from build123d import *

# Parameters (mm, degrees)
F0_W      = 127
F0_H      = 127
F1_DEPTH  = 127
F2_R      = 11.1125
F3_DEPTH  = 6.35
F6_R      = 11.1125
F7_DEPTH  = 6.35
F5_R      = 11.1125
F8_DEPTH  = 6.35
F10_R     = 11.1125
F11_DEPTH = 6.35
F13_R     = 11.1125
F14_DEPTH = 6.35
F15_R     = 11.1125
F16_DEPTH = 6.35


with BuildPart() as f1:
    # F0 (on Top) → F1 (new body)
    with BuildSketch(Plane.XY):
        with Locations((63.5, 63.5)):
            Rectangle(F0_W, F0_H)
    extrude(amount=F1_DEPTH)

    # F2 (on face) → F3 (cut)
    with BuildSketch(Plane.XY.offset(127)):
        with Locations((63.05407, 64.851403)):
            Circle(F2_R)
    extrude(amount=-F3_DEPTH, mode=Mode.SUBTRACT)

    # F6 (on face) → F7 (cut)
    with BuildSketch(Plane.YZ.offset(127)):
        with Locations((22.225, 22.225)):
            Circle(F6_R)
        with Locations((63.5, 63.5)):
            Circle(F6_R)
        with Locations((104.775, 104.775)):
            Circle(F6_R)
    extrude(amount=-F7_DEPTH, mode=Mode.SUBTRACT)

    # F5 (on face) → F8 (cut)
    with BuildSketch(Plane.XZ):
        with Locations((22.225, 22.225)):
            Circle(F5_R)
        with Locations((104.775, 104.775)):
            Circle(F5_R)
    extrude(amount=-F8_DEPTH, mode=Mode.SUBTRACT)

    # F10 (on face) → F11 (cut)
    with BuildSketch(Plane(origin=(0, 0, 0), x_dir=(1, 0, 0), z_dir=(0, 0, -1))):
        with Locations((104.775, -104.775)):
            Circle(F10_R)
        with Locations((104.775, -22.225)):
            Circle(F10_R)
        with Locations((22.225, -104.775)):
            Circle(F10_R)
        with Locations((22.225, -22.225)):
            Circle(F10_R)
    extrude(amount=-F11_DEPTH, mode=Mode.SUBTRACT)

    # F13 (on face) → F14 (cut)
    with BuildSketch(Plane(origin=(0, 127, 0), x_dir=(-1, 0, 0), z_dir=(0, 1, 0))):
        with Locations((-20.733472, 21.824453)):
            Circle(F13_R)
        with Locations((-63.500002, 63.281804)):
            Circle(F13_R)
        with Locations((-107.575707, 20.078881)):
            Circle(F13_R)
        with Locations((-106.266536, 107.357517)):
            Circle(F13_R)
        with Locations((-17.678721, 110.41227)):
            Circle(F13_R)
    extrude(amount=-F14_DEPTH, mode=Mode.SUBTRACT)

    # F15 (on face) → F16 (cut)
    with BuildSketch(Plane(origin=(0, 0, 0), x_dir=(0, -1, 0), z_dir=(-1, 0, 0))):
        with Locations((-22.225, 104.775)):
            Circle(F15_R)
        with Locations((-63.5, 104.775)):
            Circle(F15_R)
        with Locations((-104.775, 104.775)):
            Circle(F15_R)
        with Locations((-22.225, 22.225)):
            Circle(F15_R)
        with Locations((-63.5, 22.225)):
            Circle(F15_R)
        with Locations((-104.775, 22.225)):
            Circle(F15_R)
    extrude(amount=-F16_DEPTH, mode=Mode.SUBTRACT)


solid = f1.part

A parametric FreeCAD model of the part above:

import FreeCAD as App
import Part
import Sketcher
Q = App.Units.Quantity

doc = App.newDocument("Part")
body = doc.addObject("PartDesign::Body", "Body")

sketch1 = body.newObject("Sketcher::SketchObject", "Sketch")
sketch1.AttachmentSupport = (doc.getObject("XY_Plane"), [""])
sketch1.MapMode = "FlatFace"
sketch1.addGeometry(Part.LineSegment(App.Vector(0, 127, 0), App.Vector(0, 0, 0)), False)
sketch1.addGeometry(Part.LineSegment(App.Vector(0, 0, 0), App.Vector(127, 0, 0)), False)
sketch1.addGeometry(Part.LineSegment(App.Vector(127, 0, 0), App.Vector(127, 127, 0)), False)
sketch1.addGeometry(Part.LineSegment(App.Vector(127, 127, 0), App.Vector(0, 127, 0)), False)
sketch1.addConstraint(Sketcher.Constraint("Coincident", 0, 2, 1, 1))
sketch1.addConstraint(Sketcher.Constraint("Coincident", 1, 2, 2, 1))
sketch1.addConstraint(Sketcher.Constraint("Coincident", 2, 2, 3, 1))
sketch1.addConstraint(Sketcher.Constraint("Coincident", 3, 2, 0, 1))
sketch1.addConstraint(Sketcher.Constraint("Vertical", 0))
sketch1.addConstraint(Sketcher.Constraint("Horizontal", 1))
sketch1.addConstraint(Sketcher.Constraint("Vertical", 2))
sketch1.addConstraint(Sketcher.Constraint("Horizontal", 3))
sketch1.addConstraint(Sketcher.Constraint("Coincident", 0, 2, -1, 1))
sketch1.addConstraint(Sketcher.Constraint("Equal", 3, 0))
sketch1.addConstraint(Sketcher.Constraint("DistanceX", 1, 1, 1, 2, Q("5 in")))
pad1 = body.newObject("PartDesign::Pad", "Pad")
pad1.Profile = sketch1
pad1.Length = Q("5 in")

sketch2 = body.newObject("Sketcher::SketchObject", "Sketch001")
sketch2.AttachmentSupport = (doc.getObject("XY_Plane"), [""])
sketch2.MapMode = "FlatFace"
sketch2.AttachmentOffset = App.Placement(App.Vector(0, 0, 5 * 25.4), App.Rotation())
sketch2.addGeometry(Part.Circle(App.Vector(63.05407, 64.851403, 0), App.Vector(0, 0, 1), 11.1125), False)
sketch2.addConstraint(Sketcher.Constraint("Diameter", 0, Q("0.875 in")))
sketch2.addConstraint(Sketcher.Constraint("DistanceX", -1, 1, 0, 3, 63.05407))
sketch2.addConstraint(Sketcher.Constraint("DistanceY", -1, 1, 0, 3, 64.851403))
pocket1 = body.newObject("PartDesign::Pocket", "Pocket")
pocket1.Profile = sketch2
pocket1.Length = Q("0.25 in")

sketch3 = body.newObject("Sketcher::SketchObject", "Sketch002")
sketch3.AttachmentSupport = (doc.getObject("YZ_Plane"), [""])
sketch3.MapMode = "FlatFace"
sketch3.AttachmentOffset = App.Placement(App.Vector(0, 0, 5 * 25.4), App.Rotation())
sketch3.addGeometry(Part.Circle(App.Vector(22.225, 22.225, 0), App.Vector(0, 0, 1), 11.1125), False)
sketch3.addGeometry(Part.Circle(App.Vector(63.5, 63.5, 0), App.Vector(0, 0, 1), 11.1125), False)
sketch3.addGeometry(Part.Circle(App.Vector(104.775, 104.775, 0), App.Vector(0, 0, 1), 11.1125), False)
sketch3.addConstraint(Sketcher.Constraint("Equal", 0, 1))
sketch3.addConstraint(Sketcher.Constraint("Equal", 1, 2))
sketch3.addConstraint(Sketcher.Constraint("Diameter", 0, Q("0.875 in")))
sketch3.addConstraint(Sketcher.Constraint("DistanceX", -1, 1, 1, 3, Q("2.5 in")))
sketch3.addConstraint(Sketcher.Constraint("DistanceY", -1, 1, 1, 3, Q("2.5 in")))
sketch3.addConstraint(Sketcher.Constraint("DistanceX", 0, 3, 2, 3, Q("3.25 in")))
sketch3.addConstraint(Sketcher.Constraint("DistanceY", 0, 3, 2, 3, Q("3.25 in")))
sketch3.addConstraint(Sketcher.Constraint("DistanceX", -1, 1, 0, 3, Q("0.875 in")))
sketch3.addConstraint(Sketcher.Constraint("DistanceY", -1, 1, 0, 3, Q("0.875 in")))
pocket2 = body.newObject("PartDesign::Pocket", "Pocket001")
pocket2.Profile = sketch3
pocket2.Length = Q("0.25 in")

sketch4 = body.newObject("Sketcher::SketchObject", "Sketch003")
sketch4.AttachmentSupport = (doc.getObject("XZ_Plane"), [""])
sketch4.MapMode = "FlatFace"
sketch4.addGeometry(Part.Circle(App.Vector(22.225, 22.225, 0), App.Vector(0, 0, 1), 11.1125), False)
sketch4.addGeometry(Part.Circle(App.Vector(104.775, 104.775, 0), App.Vector(0, 0, 1), 11.1125), False)
sketch4.addConstraint(Sketcher.Constraint("Equal", 0, 1))
sketch4.addConstraint(Sketcher.Constraint("Diameter", 0, Q("0.875 in")))
sketch4.addConstraint(Sketcher.Constraint("DistanceX", 0, 3, 1, 3, Q("3.25 in")))
sketch4.addConstraint(Sketcher.Constraint("DistanceY", 0, 3, 1, 3, Q("3.25 in")))
sketch4.addConstraint(Sketcher.Constraint("DistanceX", -1, 1, 0, 3, Q("0.875 in")))
sketch4.addConstraint(Sketcher.Constraint("DistanceY", -1, 1, 0, 3, Q("0.875 in")))
pocket3 = body.newObject("PartDesign::Pocket", "Pocket002")
pocket3.Profile = sketch4
pocket3.Length = Q("0.25 in")

sketch5 = body.newObject("Sketcher::SketchObject", "Sketch004")
sketch5.AttachmentSupport = (doc.getObject("XY_Plane"), [""])
sketch5.MapMode = "FlatFace"
sketch5.addGeometry(Part.Circle(App.Vector(104.775, 104.775, 0), App.Vector(0, 0, 1), 11.1125), False)
sketch5.addGeometry(Part.Circle(App.Vector(104.775, 22.225, 0), App.Vector(0, 0, 1), 11.1125), False)
sketch5.addGeometry(Part.Circle(App.Vector(22.225, 104.775, 0), App.Vector(0, 0, 1), 11.1125), False)
sketch5.addGeometry(Part.Circle(App.Vector(22.225, 22.225, 0), App.Vector(0, 0, 1), 11.1125), False)
sketch5.addConstraint(Sketcher.Constraint("Equal", 0, 1))
sketch5.addConstraint(Sketcher.Constraint("Equal", 1, 2))
sketch5.addConstraint(Sketcher.Constraint("Equal", 2, 3))
sketch5.addConstraint(Sketcher.Constraint("Horizontal", 0, 3, 2, 3))
sketch5.addConstraint(Sketcher.Constraint("Horizontal", 1, 3, 3, 3))
sketch5.addConstraint(Sketcher.Constraint("Vertical", 0, 3, 1, 3))
sketch5.addConstraint(Sketcher.Constraint("Vertical", 2, 3, 3, 3))
sketch5.addConstraint(Sketcher.Constraint("Diameter", 0, Q("0.875 in")))
sketch5.addConstraint(Sketcher.Constraint("DistanceY", 1, 3, 0, 3, Q("3.25 in")))
sketch5.addConstraint(Sketcher.Constraint("DistanceX", 2, 3, 0, 3, Q("3.25 in")))
sketch5.addConstraint(Sketcher.Constraint("DistanceX", -1, 1, 0, 3, Q("4.125 in")))
sketch5.addConstraint(Sketcher.Constraint("DistanceY", -1, 1, 0, 3, Q("4.125 in")))
pocket4 = body.newObject("PartDesign::Pocket", "Pocket003")
pocket4.Profile = sketch5
pocket4.Length = Q("0.25 in")
pocket4.Reversed = True

sketch6 = body.newObject("Sketcher::SketchObject", "Sketch005")
sketch6.AttachmentSupport = (doc.getObject("XZ_Plane"), [""])
sketch6.MapMode = "FlatFace"
sketch6.AttachmentOffset = App.Placement(App.Vector(0, 0, -5 * 25.4), App.Rotation())
sketch6.addGeometry(Part.Circle(App.Vector(20.733472, 21.824453, 0), App.Vector(0, 0, 1), 11.1125), False)
sketch6.addGeometry(Part.Circle(App.Vector(63.500002, 63.281804, 0), App.Vector(0, 0, 1), 11.1125), False)
sketch6.addGeometry(Part.Circle(App.Vector(107.575707, 20.078881, 0), App.Vector(0, 0, 1), 11.1125), False)
sketch6.addGeometry(Part.Circle(App.Vector(106.266536, 107.357517, 0), App.Vector(0, 0, 1), 11.1125), False)
sketch6.addGeometry(Part.Circle(App.Vector(17.678721, 110.41227, 0), App.Vector(0, 0, 1), 11.1125), False)
sketch6.addConstraint(Sketcher.Constraint("Equal", 0, 1))
sketch6.addConstraint(Sketcher.Constraint("Equal", 1, 2))
sketch6.addConstraint(Sketcher.Constraint("Equal", 2, 3))
sketch6.addConstraint(Sketcher.Constraint("Equal", 3, 4))
sketch6.addConstraint(Sketcher.Constraint("Diameter", 0, Q("0.875 in")))
sketch6.addConstraint(Sketcher.Constraint("DistanceX", -1, 1, 1, 3, Q("2.5000001 in")))
sketch6.addConstraint(Sketcher.Constraint("DistanceX", -1, 1, 0, 3, 20.733472))
sketch6.addConstraint(Sketcher.Constraint("DistanceY", -1, 1, 2, 3, 20.078881))
sketch6.addConstraint(Sketcher.Constraint("DistanceX", -1, 1, 4, 3, 17.678721))
sketch6.addConstraint(Sketcher.Constraint("DistanceY", -1, 1, 4, 3, 110.41227))
sketch6.addConstraint(Sketcher.Constraint("DistanceY", 0, 3, 1, 3, 41.457351))
sketch6.addConstraint(Sketcher.Constraint("DistanceY", 2, 3, 0, 3, 1.745572))
sketch6.addConstraint(Sketcher.Constraint("DistanceX", 3, 3, 2, 3, 1.309171))
sketch6.addConstraint(Sketcher.Constraint("DistanceX", -1, 1, 2, 3, 107.575707))
sketch6.addConstraint(Sketcher.Constraint("DistanceY", -1, 1, 3, 3, 107.357517))
pocket5 = body.newObject("PartDesign::Pocket", "Pocket004")
pocket5.Profile = sketch6
pocket5.Length = Q("0.25 in")
pocket5.Reversed = True

sketch7 = body.newObject("Sketcher::SketchObject", "Sketch006")
sketch7.AttachmentSupport = (doc.getObject("YZ_Plane"), [""])
sketch7.MapMode = "FlatFace"
sketch7.addGeometry(Part.Circle(App.Vector(22.225, 104.775, 0), App.Vector(0, 0, 1), 11.1125), False)
sketch7.addGeometry(Part.Circle(App.Vector(63.5, 104.775, 0), App.Vector(0, 0, 1), 11.1125), False)
sketch7.addGeometry(Part.Circle(App.Vector(104.775, 104.775, 0), App.Vector(0, 0, 1), 11.1125), False)
sketch7.addGeometry(Part.Circle(App.Vector(22.225, 22.225, 0), App.Vector(0, 0, 1), 11.1125), False)
sketch7.addGeometry(Part.Circle(App.Vector(63.5, 22.225, 0), App.Vector(0, 0, 1), 11.1125), False)
sketch7.addGeometry(Part.Circle(App.Vector(104.775, 22.225, 0), App.Vector(0, 0, 1), 11.1125), False)
sketch7.addConstraint(Sketcher.Constraint("Equal", 0, 1))
sketch7.addConstraint(Sketcher.Constraint("Equal", 1, 2))
sketch7.addConstraint(Sketcher.Constraint("Equal", 2, 3))
sketch7.addConstraint(Sketcher.Constraint("Equal", 3, 4))
sketch7.addConstraint(Sketcher.Constraint("Equal", 4, 5))
sketch7.addConstraint(Sketcher.Constraint("Horizontal", 0, 3, 1, 3))
sketch7.addConstraint(Sketcher.Constraint("Horizontal", 1, 3, 2, 3))
sketch7.addConstraint(Sketcher.Constraint("Horizontal", 3, 3, 4, 3))
sketch7.addConstraint(Sketcher.Constraint("Horizontal", 4, 3, 5, 3))
sketch7.addConstraint(Sketcher.Constraint("Vertical", 0, 3, 3, 3))
sketch7.addConstraint(Sketcher.Constraint("Vertical", 1, 3, 4, 3))
sketch7.addConstraint(Sketcher.Constraint("Vertical", 2, 3, 5, 3))
sketch7.addConstraint(Sketcher.Constraint("Diameter", 0, Q("0.875 in")))
sketch7.addConstraint(Sketcher.Constraint("DistanceX", -1, 1, 1, 3, Q("2.5 in")))
sketch7.addConstraint(Sketcher.Constraint("DistanceX", 0, 3, 2, 3, Q("3.25 in")))
sketch7.addConstraint(Sketcher.Constraint("DistanceY", 3, 3, 0, 3, Q("3.25 in")))
sketch7.addConstraint(Sketcher.Constraint("DistanceX", -1, 1, 0, 3, Q("0.875 in")))
sketch7.addConstraint(Sketcher.Constraint("DistanceY", -1, 1, 0, 3, Q("4.125 in")))
pocket6 = body.newObject("PartDesign::Pocket", "Pocket005")
pocket6.Profile = sketch7
pocket6.Length = Q("0.25 in")
pocket6.Reversed = True

doc.recompute()
